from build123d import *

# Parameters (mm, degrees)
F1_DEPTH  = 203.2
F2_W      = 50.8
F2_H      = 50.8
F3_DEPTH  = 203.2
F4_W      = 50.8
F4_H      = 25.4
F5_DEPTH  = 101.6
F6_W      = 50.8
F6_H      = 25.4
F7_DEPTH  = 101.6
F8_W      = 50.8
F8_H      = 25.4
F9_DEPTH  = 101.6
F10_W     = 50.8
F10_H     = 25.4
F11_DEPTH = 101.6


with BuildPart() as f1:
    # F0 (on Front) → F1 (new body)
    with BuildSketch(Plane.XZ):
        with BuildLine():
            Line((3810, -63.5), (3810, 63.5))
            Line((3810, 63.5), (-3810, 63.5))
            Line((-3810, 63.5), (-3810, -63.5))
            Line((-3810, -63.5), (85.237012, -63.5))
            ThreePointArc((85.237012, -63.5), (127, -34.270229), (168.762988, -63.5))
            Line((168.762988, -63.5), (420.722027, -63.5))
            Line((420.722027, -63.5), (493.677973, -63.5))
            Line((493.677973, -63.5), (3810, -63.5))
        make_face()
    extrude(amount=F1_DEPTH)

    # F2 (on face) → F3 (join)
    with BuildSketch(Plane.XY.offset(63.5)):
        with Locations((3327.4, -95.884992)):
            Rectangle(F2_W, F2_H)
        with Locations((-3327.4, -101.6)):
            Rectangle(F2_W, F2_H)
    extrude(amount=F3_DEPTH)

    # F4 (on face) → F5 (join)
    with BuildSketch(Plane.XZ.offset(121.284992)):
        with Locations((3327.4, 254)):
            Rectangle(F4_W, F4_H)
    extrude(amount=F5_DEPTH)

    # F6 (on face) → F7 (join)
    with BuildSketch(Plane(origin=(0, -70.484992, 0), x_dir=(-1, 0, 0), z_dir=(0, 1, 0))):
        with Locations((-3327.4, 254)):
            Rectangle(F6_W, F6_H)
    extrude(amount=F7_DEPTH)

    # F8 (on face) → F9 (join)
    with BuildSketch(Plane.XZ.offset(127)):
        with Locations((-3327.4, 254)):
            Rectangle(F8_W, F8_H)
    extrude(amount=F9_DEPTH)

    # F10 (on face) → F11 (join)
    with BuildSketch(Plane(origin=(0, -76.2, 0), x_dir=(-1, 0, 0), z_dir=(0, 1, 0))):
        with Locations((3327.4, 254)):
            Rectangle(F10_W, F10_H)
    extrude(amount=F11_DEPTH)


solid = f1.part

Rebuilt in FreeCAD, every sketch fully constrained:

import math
import FreeCAD as App
import Part
import Sketcher

V = App.Vector
Q = App.Units.Quantity


def add_polygon(sketch, points):
    """Adds a closed chain of lines whose ends are joined by coincident constraints."""
    first, n = sketch.GeometryCount, len(points)
    for a, b in zip(points, points[1:] + points[:1]):
        sketch.addGeometry(Part.LineSegment(App.Vector(*a, 0), App.Vector(*b, 0)), False)
    for i in range(n):
        sketch.addConstraint(Sketcher.Constraint("Coincident", first + i, 2, first + (i + 1) % n, 1))

doc = App.newDocument("Part")
body = doc.addObject("PartDesign::Body", "Body")

sketch1 = body.newObject("Sketcher::SketchObject", "Sketch")
sketch1.AttachmentSupport = (doc.getObject("XZ_Plane"), [""])
sketch1.MapMode = "FlatFace"
sketch1.addGeometry(Part.LineSegment(V(3810, -64, 0), V(3810, 64, 0)), False)
sketch1.addGeometry(Part.LineSegment(V(3810, 64, 0), V(-3810, 64, 0)), False)
sketch1.addGeometry(Part.LineSegment(V(-3810, 64, 0), V(-3810, -64, 0)), False)
sketch1.addGeometry(Part.LineSegment(V(-3810, -64, 0), V(85, -64, 0)), False)
sketch1.addGeometry(Part.ArcOfCircle(Part.Circle(V(127, -79, 0), V(0, 0, 1), 44), math.radians(20), math.radians(160)), False)
sketch1.addGeometry(Part.LineSegment(V(169, -64, 0), V(3810, -64, 0)), False)
sketch1.addConstraint(Sketcher.Constraint("Coincident", 0, 2, 1, 1))
sketch1.addConstraint(Sketcher.Constraint("Coincident", 1, 2, 2, 1))
sketch1.addConstraint(Sketcher.Constraint("Coincident", 2, 2, 3, 1))
sketch1.addConstraint(Sketcher.Constraint("Coincident", 3, 2, 4, 2))
sketch1.addConstraint(Sketcher.Constraint("Coincident", 4, 1, 5, 1))
sketch1.addConstraint(Sketcher.Constraint("Coincident", 5, 2, 0, 1))
sketch1.addConstraint(Sketcher.Constraint("Vertical", 0))
sketch1.addConstraint(Sketcher.Constraint("Horizontal", 1))
sketch1.addConstraint(Sketcher.Constraint("Vertical", 2))
sketch1.addConstraint(Sketcher.Constraint("Horizontal", 3))
sketch1.addConstraint(Sketcher.Constraint("Horizontal", 5))
sketch1.addConstraint(Sketcher.Constraint("Symmetric", 0, 2, 2, 2, -1, 1))
sketch1.addConstraint(Sketcher.Constraint("Horizontal", 3, 2, 4, 1))
sketch1.addConstraint(Sketcher.Constraint("DistanceX", 1, 2, 1, 1, Q("300 in")))
sketch1.addConstraint(Sketcher.Constraint("DistanceY", 0, 1, 0, 2, Q("5 in")))
sketch1.addConstraint(Sketcher.Constraint("Radius", 4, Q("1.75 in")))
sketch1.addConstraint(Sketcher.Constraint("DistanceX", -1, 1, 4, 3, Q("5 in")))
sketch1.addConstraint(Sketcher.Constraint("DistanceX", 3, 1, 3, 2, 3895.237012))
pad1 = body.newObject("PartDesign::Pad", "Pad")
pad1.Profile = sketch1
pad1.Length = Q("8 in")

sketch2 = body.newObject("Sketcher::SketchObject", "Sketch001")
sketch2.AttachmentSupport = (doc.getObject("XY_Plane"), [""])
sketch2.MapMode = "FlatFace"
sketch2.AttachmentOffset = App.Placement(V(0, 0, 2.5 * 25.4), App.Rotation())
add_polygon(sketch2, [(3302, -70), (3302, -121), (3353, -121), (3353, -70)])
add_polygon(sketch2, [(-3353, -76), (-3353, -127), (-3302, -127), (-3302, -76)])
sketch2.addConstraint(Sketcher.Constraint("Vertical", 0))
sketch2.addConstraint(Sketcher.Constraint("Horizontal", 1))
sketch2.addConstraint(Sketcher.Constraint("Vertical", 2))
sketch2.addConstraint(Sketcher.Constraint("Horizontal", 3))
sketch2.addConstraint(Sketcher.Constraint("Vertical", 4))
sketch2.addConstraint(Sketcher.Constraint("Horizontal", 5))
sketch2.addConstraint(Sketcher.Constraint("Vertical", 6))
sketch2.addConstraint(Sketcher.Constraint("Horizontal", 7))
sketch2.addConstraint(Sketcher.Constraint("Equal", 3, 5))
sketch2.addConstraint(Sketcher.Constraint("Equal", 7, 0))
sketch2.addConstraint(Sketcher.Constraint("Equal", 2, 4))
sketch2.addConstraint(Sketcher.Constraint("DistanceX", 1, 1, 1, 2, Q("2 in")))
sketch2.addConstraint(Sketcher.Constraint("DistanceX", -1, 1, 0, 2, Q("130 in")))
sketch2.addConstraint(Sketcher.Constraint("DistanceX", 4, 2, -1, 1, Q("132 in")))
sketch2.addConstraint(Sketcher.Constraint("DistanceY", 4, 2, -1, 1, Q("5 in")))
sketch2.addConstraint(Sketcher.Constraint("DistanceY", 0, 2, -1, 1, 121.284992))
pad2 = body.newObject("PartDesign::Pad", "Pad001")
pad2.Profile = sketch2
pad2.Length = Q("8 in")

sketch3 = body.newObject("Sketcher::SketchObject", "Sketch002")
sketch3.AttachmentSupport = (doc.getObject("XZ_Plane"), [""])
sketch3.MapMode = "FlatFace"
sketch3.AttachmentOffset = App.Placement(V(0, 0, 121.284992), App.Rotation())
add_polygon(sketch3, [(3302, 267), (3302, 241), (3353, 241), (3353, 267)])
sketch3.addConstraint(Sketcher.Constraint("Vertical", 0))
sketch3.addConstraint(Sketcher.Constraint("Horizontal", 1))
sketch3.addConstraint(Sketcher.Constraint("Vertical", 2))
sketch3.addConstraint(Sketcher.Constraint("Horizontal", 3))
sketch3.addConstraint(Sketcher.Constraint("DistanceX", 1, 1, 1, 2, Q("2 in")))
sketch3.addConstraint(Sketcher.Constraint("DistanceY", 0, 2, 0, 1, Q("1 in")))
sketch3.addConstraint(Sketcher.Constraint("DistanceX", -1, 1, 0, 2, Q("130 in")))
sketch3.addConstraint(Sketcher.Constraint("DistanceY", -1, 1, 0, 2, Q("9.5 in")))
pad3 = body.newObject("PartDesign::Pad", "Pad002")
pad3.Profile = sketch3
pad3.Length = Q("4 in")

sketch4 = body.newObject("Sketcher::SketchObject", "Sketch003")
sketch4.AttachmentSupport = (doc.getObject("XZ_Plane"), [""])
sketch4.MapMode = "FlatFace"
sketch4.AttachmentOffset = App.Placement(V(0, 0, 70.484992), App.Rotation())
add_polygon(sketch4, [(3353, 267), (3353, 241), (3302, 241), (3302, 267)])
sketch4.addConstraint(Sketcher.Constraint("Vertical", 0))
sketch4.addConstraint(Sketcher.Constraint("Horizontal", 1))
sketch4.addConstraint(Sketcher.Constraint("Vertical", 2))
sketch4.addConstraint(Sketcher.Constraint("Horizontal", 3))
sketch4.addConstraint(Sketcher.Constraint("DistanceX", 1, 2, 1, 1, Q("2 in")))
sketch4.addConstraint(Sketcher.Constraint("DistanceY", 0, 2, 0, 1, Q("1 in")))
sketch4.addConstraint(Sketcher.Constraint("DistanceX", -1, 1, 0, 2, Q("132 in")))
sketch4.addConstraint(Sketcher.Constraint("DistanceY", -1, 1, 0, 2, Q("9.5 in")))
pad4 = body.newObject("PartDesign::Pad", "Pad003")
pad4.Profile = sketch4
pad4.Length = Q("4 in")
pad4.Reversed = True

sketch5 = body.newObject("Sketcher::SketchObject", "Sketch004")
sketch5.AttachmentSupport = (doc.getObject("XZ_Plane"), [""])
sketch5.MapMode = "FlatFace"
sketch5.AttachmentOffset = App.Placement(V(0, 0, 5 * 25.4), App.Rotation())
add_polygon(sketch5, [(-3353, 267), (-3353, 241), (-3302, 241), (-3302, 267)])
sketch5.addConstraint(Sketcher.Constraint("Vertical", 0))
sketch5.addConstraint(Sketcher.Constraint("Horizontal", 1))
sketch5.addConstraint(Sketcher.Constraint("Vertical", 2))
sketch5.addConstraint(Sketcher.Constraint("Horizontal", 3))
sketch5.addConstraint(Sketcher.Constraint("DistanceX", 1, 1, 1, 2, Q("2 in")))
sketch5.addConstraint(Sketcher.Constraint("DistanceY", 0, 2, 0, 1, Q("1 in")))
sketch5.addConstraint(Sketcher.Constraint("DistanceX", 0, 2, -1, 1, Q("132 in")))
sketch5.addConstraint(Sketcher.Constraint("DistanceY", -1, 1, 0, 2, Q("9.5 in")))
pad5 = body.newObject("PartDesign::Pad", "Pad004")
pad5.Profile = sketch5
pad5.Length = Q("4 in")

sketch6 = body.newObject("Sketcher::SketchObject", "Sketch005")
sketch6.AttachmentSupport = (doc.getObject("XZ_Plane"), [""])
sketch6.MapMode = "FlatFace"
sketch6.AttachmentOffset = App.Placement(V(0, 0, 3 * 25.4), App.Rotation())
add_polygon(sketch6, [(-3302, 267), (-3302, 241), (-3353, 241), (-3353, 267)])
sketch6.addConstraint(Sketcher.Constraint("Vertical", 0))
sketch6.addConstraint(Sketcher.Constraint("Horizontal", 1))
sketch6.addConstraint(Sketcher.Constraint("Vertical", 2))
sketch6.addConstraint(Sketcher.Constraint("Horizontal", 3))
sketch6.addConstraint(Sketcher.Constraint("DistanceX", 1, 2, 1, 1, Q("2 in")))
sketch6.addConstraint(Sketcher.Constraint("DistanceY", 0, 2, 0, 1, Q("1 in")))
sketch6.addConstraint(Sketcher.Constraint("DistanceX", 0, 2, -1, 1, Q("130 in")))
sketch6.addConstraint(Sketcher.Constraint("DistanceY", -1, 1, 0, 2, Q("9.5 in")))
pad6 = body.newObject("PartDesign::Pad", "Pad005")
pad6.Profile = sketch6
pad6.Length = Q("4 in")
pad6.Reversed = True

doc.recompute()
